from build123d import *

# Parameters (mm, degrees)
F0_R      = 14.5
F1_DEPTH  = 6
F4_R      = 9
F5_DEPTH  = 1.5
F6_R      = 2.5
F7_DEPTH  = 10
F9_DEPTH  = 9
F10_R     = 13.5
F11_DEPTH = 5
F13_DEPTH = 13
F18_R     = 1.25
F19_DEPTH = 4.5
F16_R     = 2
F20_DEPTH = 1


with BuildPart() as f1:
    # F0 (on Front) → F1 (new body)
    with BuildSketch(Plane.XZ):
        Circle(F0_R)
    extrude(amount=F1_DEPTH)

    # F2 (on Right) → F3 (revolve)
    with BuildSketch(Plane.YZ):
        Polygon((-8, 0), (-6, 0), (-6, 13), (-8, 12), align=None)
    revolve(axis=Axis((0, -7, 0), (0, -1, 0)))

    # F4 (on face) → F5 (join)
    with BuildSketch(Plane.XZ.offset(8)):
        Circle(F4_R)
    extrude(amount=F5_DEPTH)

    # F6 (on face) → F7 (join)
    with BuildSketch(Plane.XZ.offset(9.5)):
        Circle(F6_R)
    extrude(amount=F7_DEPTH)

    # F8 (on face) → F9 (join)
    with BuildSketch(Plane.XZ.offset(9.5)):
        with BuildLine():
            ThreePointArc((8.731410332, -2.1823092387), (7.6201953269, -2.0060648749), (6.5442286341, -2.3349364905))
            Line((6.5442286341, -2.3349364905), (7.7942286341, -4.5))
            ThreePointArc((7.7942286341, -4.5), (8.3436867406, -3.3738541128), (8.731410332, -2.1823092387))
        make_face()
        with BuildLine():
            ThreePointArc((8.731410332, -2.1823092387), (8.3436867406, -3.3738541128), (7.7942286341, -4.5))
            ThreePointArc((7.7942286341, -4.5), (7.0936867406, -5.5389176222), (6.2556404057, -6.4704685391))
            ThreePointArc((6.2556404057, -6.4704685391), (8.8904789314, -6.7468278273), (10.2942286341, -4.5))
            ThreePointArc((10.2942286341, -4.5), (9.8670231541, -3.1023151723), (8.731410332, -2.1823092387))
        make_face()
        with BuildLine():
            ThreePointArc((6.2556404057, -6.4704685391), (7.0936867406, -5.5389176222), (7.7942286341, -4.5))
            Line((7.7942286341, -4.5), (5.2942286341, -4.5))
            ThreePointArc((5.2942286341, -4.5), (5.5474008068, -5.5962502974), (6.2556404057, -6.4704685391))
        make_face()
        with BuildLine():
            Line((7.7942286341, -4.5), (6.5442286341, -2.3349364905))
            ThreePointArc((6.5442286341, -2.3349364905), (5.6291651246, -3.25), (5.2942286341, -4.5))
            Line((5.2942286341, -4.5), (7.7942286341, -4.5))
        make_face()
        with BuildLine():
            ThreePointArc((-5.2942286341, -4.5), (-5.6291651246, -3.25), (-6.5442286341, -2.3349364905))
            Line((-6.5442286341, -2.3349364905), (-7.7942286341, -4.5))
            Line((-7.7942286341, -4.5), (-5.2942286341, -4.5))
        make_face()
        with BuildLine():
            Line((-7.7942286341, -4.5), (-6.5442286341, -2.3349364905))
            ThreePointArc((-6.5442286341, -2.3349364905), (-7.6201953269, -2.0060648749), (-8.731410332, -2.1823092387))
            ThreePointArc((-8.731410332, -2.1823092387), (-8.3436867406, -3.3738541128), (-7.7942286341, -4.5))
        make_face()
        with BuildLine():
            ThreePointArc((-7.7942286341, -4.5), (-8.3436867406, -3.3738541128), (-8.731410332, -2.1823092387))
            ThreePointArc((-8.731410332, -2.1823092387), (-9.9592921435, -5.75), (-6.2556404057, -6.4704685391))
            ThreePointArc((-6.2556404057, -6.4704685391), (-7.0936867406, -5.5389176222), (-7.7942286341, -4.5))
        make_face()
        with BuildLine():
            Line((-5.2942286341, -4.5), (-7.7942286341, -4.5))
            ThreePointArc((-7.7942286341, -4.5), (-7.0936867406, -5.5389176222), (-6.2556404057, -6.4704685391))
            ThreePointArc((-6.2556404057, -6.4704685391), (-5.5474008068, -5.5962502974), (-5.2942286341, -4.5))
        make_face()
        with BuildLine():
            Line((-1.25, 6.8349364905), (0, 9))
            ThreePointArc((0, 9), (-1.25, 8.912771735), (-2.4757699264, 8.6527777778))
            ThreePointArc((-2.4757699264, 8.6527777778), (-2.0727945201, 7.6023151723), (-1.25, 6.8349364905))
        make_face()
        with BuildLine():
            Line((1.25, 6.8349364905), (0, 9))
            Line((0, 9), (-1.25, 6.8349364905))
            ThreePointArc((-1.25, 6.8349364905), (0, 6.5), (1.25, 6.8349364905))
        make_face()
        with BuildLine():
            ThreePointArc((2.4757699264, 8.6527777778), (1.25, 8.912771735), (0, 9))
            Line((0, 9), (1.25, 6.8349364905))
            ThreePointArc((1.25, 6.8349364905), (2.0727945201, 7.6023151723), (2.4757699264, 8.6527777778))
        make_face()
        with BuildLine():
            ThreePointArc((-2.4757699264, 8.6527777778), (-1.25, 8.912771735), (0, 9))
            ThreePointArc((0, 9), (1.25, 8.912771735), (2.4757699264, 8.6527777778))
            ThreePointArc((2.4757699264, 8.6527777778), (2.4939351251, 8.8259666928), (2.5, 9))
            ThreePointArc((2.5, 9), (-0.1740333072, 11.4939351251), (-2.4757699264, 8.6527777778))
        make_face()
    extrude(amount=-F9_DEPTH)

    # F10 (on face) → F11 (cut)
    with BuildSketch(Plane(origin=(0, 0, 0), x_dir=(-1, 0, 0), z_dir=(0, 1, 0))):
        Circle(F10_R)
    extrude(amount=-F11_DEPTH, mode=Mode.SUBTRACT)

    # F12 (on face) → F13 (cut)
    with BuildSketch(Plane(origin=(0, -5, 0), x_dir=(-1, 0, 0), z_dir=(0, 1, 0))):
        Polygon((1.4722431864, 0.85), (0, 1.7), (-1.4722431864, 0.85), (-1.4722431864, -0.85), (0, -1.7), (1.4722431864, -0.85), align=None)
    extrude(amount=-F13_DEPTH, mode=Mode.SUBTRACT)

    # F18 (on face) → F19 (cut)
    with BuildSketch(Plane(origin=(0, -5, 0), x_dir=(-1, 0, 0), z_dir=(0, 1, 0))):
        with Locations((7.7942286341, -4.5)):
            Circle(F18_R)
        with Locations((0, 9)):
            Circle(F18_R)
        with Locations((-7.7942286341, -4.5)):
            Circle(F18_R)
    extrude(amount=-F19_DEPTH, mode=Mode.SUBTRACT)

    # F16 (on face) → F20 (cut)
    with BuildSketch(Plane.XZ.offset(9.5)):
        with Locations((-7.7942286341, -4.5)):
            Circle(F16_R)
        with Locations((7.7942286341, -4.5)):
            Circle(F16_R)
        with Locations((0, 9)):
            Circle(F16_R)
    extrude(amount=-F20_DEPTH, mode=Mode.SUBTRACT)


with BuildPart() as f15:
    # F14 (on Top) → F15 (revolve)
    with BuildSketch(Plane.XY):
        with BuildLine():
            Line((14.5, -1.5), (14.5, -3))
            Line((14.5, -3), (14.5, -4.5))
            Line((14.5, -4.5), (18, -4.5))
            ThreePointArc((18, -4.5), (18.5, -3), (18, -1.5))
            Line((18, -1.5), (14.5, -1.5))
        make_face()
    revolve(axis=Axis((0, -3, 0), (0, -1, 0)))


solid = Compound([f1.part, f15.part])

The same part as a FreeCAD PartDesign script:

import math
import FreeCAD as App
import Part
import Sketcher

V = App.Vector
Q = App.Units.Quantity


def add_polygon(sketch, points):
    """Adds a closed chain of lines whose ends are joined by coincident constraints."""
    first, n = sketch.GeometryCount, len(points)
    for a, b in zip(points, points[1:] + points[:1]):
        sketch.addGeometry(Part.LineSegment(App.Vector(*a, 0), App.Vector(*b, 0)), False)
    for i in range(n):
        sketch.addConstraint(Sketcher.Constraint("Coincident", first + i, 2, first + (i + 1) % n, 1))

doc = App.newDocument("Part")
body = doc.addObject("PartDesign::Body", "Body")

sketch1 = body.newObject("Sketcher::SketchObject", "Sketch")
sketch1.AttachmentSupport = (doc.getObject("XZ_Plane"), [""])
sketch1.MapMode = "FlatFace"
sketch1.addGeometry(Part.Circle(V(0, 0, 0), V(0, 0, 1), 14), False)
sketch1.addConstraint([
    Sketcher.Constraint("Coincident", 0, 3, -1, 1),
    Sketcher.Constraint("Diameter", 0, Q("29 mm")),
])
pad1 = body.newObject("PartDesign::Pad", "Pad")
pad1.Profile = sketch1
pad1.Length = 6

sketch2 = body.newObject("Sketcher::SketchObject", "Sketch001")
sketch2.AttachmentSupport = (doc.getObject("YZ_Plane"), [""])
sketch2.MapMode = "FlatFace"
add_polygon(sketch2, [(-8, 0), (-6, 0), (-6, 13), (-8, 12)])
sketch2.addConstraint([
    Sketcher.Constraint("Horizontal", 0),
    Sketcher.Constraint("Vertical", 1),
    Sketcher.Constraint("Vertical", 3),
    Sketcher.Constraint("PointOnObject", 0, 2, -1),
    Sketcher.Constraint("DistanceX", 0, 1, 0, 2, Q("2 mm")),
    Sketcher.Constraint("DistanceY", 1, 1, 1, 2, Q("13 mm")),
    Sketcher.Constraint("DistanceY", 3, 2, 3, 1, Q("12 mm")),
    Sketcher.Constraint("DistanceX", 0, 2, -1, 1, Q("6 mm")),
])
revolution = body.newObject("PartDesign::Revolution", "Revolution")
revolution.Profile = sketch2
revolution.ReferenceAxis = (sketch2, ["H_Axis"])
revolution.Angle = 360

sketch3 = body.newObject("Sketcher::SketchObject", "Sketch002")
sketch3.AttachmentSupport = (doc.getObject("XZ_Plane"), [""])
sketch3.MapMode = "FlatFace"
sketch3.AttachmentOffset = App.Placement(V(0, 0, 8), App.Rotation())
sketch3.addGeometry(Part.Circle(V(0, 0, 0), V(0, 0, 1), 9), False)
sketch3.addConstraint([
    Sketcher.Constraint("Coincident", 0, 3, -1, 1),
    Sketcher.Constraint("Diameter", 0, Q("18 mm")),
])
pad2 = body.newObject("PartDesign::Pad", "Pad001")
pad2.Profile = sketch3
pad2.Length = 1.5

sketch4 = body.newObject("Sketcher::SketchObject", "Sketch003")
sketch4.AttachmentSupport = (doc.getObject("XZ_Plane"), [""])
sketch4.MapMode = "FlatFace"
sketch4.AttachmentOffset = App.Placement(V(0, 0, 9.5), App.Rotation())
sketch4.addGeometry(Part.Circle(V(0, 0, 0), V(0, 0, 1), 2.5), False)
sketch4.addConstraint([
    Sketcher.Constraint("Coincident", 0, 3, -1, 1),
    Sketcher.Constraint("Diameter", 0, Q("5 mm")),
])
pad3 = body.newObject("PartDesign::Pad", "Pad002")
pad3.Profile = sketch4
pad3.Length = 10

sketch5 = body.newObject("Sketcher::SketchObject", "Sketch004")
sketch5.AttachmentSupport = (doc.getObject("XZ_Plane"), [""])
sketch5.MapMode = "FlatFace"
sketch5.AttachmentOffset = App.Placement(V(0, 0, 9.5), App.Rotation())
sketch5.addGeometry([
    Part.ArcOfCircle(Part.Circle(V(7.79, -4.5, 0), V(0, 0, 1), 2.5), math.radians(68), math.radians(120)),
    Part.ArcOfCircle(Part.Circle(V(7.79, -4.5, 0), V(0, 0, 1), 2.5), math.radians(120), math.radians(180)),
    Part.ArcOfCircle(Part.Circle(V(7.79, -4.5, 0), V(0, 0, 1), 2.5), math.radians(180), math.radians(232)),
    Part.ArcOfCircle(Part.Circle(V(7.79, -4.5, 0), V(0, 0, 1), 2.5), math.radians(-128), math.radians(0)),
    Part.ArcOfCircle(Part.Circle(V(7.79, -4.5, 0), V(0, 0, 1), 2.5), math.radians(0), math.radians(68)),
    Part.ArcOfCircle(Part.Circle(V(-7.79, -4.5, 0), V(0, 0, 1), 2.5), math.radians(0), math.radians(60)),
    Part.ArcOfCircle(Part.Circle(V(-7.79, -4.5, 0), V(0, 0, 1), 2.5), math.radians(60), math.radians(112)),
    Part.ArcOfCircle(Part.Circle(V(-7.79, -4.5, 0), V(0, 0, 1), 2.5), math.radians(112), math.radians(308)),
    Part.ArcOfCircle(Part.Circle(V(-7.79, -4.5, 0), V(0, 0, 1), 2.5), math.radians(-52), math.radians(0)),
    Part.ArcOfCircle(Part.Circle(V(0, 9, 0), V(0, 0, 1), 2.5), math.radians(-172), math.radians(-120)),
    Part.ArcOfCircle(Part.Circle(V(0, 9, 0), V(0, 0, 1), 2.5), math.radians(-120), math.radians(-60)),
    Part.ArcOfCircle(Part.Circle(V(0, 9, 0), V(0, 0, 1), 2.5), math.radians(-60), math.radians(-8)),
    Part.ArcOfCircle(Part.Circle(V(0, 9, 0), V(0, 0, 1), 2.5), math.radians(-7.98), math.radians(0)),
    Part.ArcOfCircle(Part.Circle(V(0, 9, 0), V(0, 0, 1), 2.5), math.radians(0), math.radians(188)),
], False)
sketch5.addConstraint([
    Sketcher.Constraint("Tangent", 0, 2, 1, 1),
    Sketcher.Constraint("Tangent", 1, 2, 2, 1),
    Sketcher.Constraint("Tangent", 2, 2, 3, 1),
    Sketcher.Constraint("Tangent", 3, 2, 4, 1),
    Sketcher.Constraint("Tangent", 4, 2, 0, 1),
    Sketcher.Constraint("Tangent", 5, 2, 6, 1),
    Sketcher.Constraint("Tangent", 6, 2, 7, 1),
    Sketcher.Constraint("Tangent", 7, 2, 8, 1),
    Sketcher.Constraint("Tangent", 8, 2, 5, 1),
    Sketcher.Constraint("Tangent", 9, 2, 10, 1),
    Sketcher.Constraint("Tangent", 10, 2, 11, 1),
    Sketcher.Constraint("Tangent", 11, 2, 12, 1),
    Sketcher.Constraint("Tangent", 12, 2, 13, 1),
    Sketcher.Constraint("Tangent", 13, 2, 9, 1),
    Sketcher.Constraint("Coincident", 2, 3, 0, 3),
    Sketcher.Constraint("Coincident", 11, 3, 9, 3),
    Sketcher.Constraint("Equal", 4, 5),
    Sketcher.Constraint("Equal", 5, 6),
    Sketcher.Constraint("Equal", 8, 9),
    Sketcher.Constraint("Symmetric", 0, 3, 5, 3, -2),
    Sketcher.Constraint("Symmetric", 9, 2, 10, 2, -2),
    Sketcher.Constraint("Horizontal", 8, 3, 1, 2),
    Sketcher.Constraint("Horizontal", 1, 2, 3, 2),
    Sketcher.Constraint("Horizontal", 0, 2, 5, 2),
    Sketcher.Constraint("Horizontal", 4, 2, 6, 2),
    Sketcher.Constraint("Horizontal", 2, 2, 7, 2),
    Sketcher.Constraint("Horizontal", 3, 2, 8, 2),
    Sketcher.Constraint("Horizontal", 13, 3, 12, 2),
    Sketcher.Constraint("Horizontal", 11, 2, 13, 2),
    Sketcher.Constraint("Radius", 0, Q("2.5 mm")),
    Sketcher.Constraint("DistanceY", -1, 1, 9, 3, Q("9 mm")),
    Sketcher.Constraint("DistanceY", 0, 3, -1, 1, Q("4.5 mm")),
    Sketcher.Constraint("DistanceX", 9, 2, 10, 2, Q("2.5 mm")),
    Sketcher.Constraint("DistanceX", 0, 2, 0, 3, Q("1.25 mm")),
    Sketcher.Constraint("DistanceX", -1, 1, 0, 3, Q("7.794229 mm")),
    Sketcher.Constraint("DistanceX", -1, 1, 2, 2, Q("6.25564 mm")),
    Sketcher.Constraint("DistanceX", -1, 1, 4, 2, Q("8.73141 mm")),
    Sketcher.Constraint("DistanceX", -1, 1, 11, 2, Q("2.47577 mm")),
])
pad4 = body.newObject("PartDesign::Pad", "Pad003")
pad4.Profile = sketch5
pad4.Length = 9
pad4.Reversed = True

sketch6 = body.newObject("Sketcher::SketchObject", "Sketch005")
sketch6.AttachmentSupport = (doc.getObject("XZ_Plane"), [""])
sketch6.MapMode = "FlatFace"
sketch6.addGeometry(Part.Circle(V(0, 0, 0), V(0, 0, 1), 14), False)
sketch6.addConstraint([
    Sketcher.Constraint("Coincident", 0, 3, -1, 1),
    Sketcher.Constraint("Diameter", 0, Q("27 mm")),
])
pocket1 = body.newObject("PartDesign::Pocket", "Pocket")
pocket1.Profile = sketch6
pocket1.Length = 5
pocket1.Reversed = True

sketch7 = body.newObject("Sketcher::SketchObject", "Sketch006")
sketch7.AttachmentSupport = (doc.getObject("XZ_Plane"), [""])
sketch7.MapMode = "FlatFace"
sketch7.AttachmentOffset = App.Placement(V(0, 0, 5), App.Rotation())
add_polygon(sketch7, [(-1.5, 0.8), (0, 1.7), (1.5, 0.8), (1.5, -0.8), (0, -1.7), (-1.5, -0.8)])
sketch7.addConstraint([
    Sketcher.Constraint("Vertical", 2),
    Sketcher.Constraint("Vertical", 5),
    Sketcher.Constraint("Symmetric", 0, 2, 3, 2, -1, 1),
    Sketcher.Constraint("Symmetric", 1, 2, 4, 2, -1, 1),
    Sketcher.Constraint("PointOnObject", 0, 2, -2),
    Sketcher.Constraint("Parallel", 0, 3),
    Sketcher.Constraint("Horizontal", 2, 2, 4, 2),
    Sketcher.Constraint("Angle", 0, Q("30 deg")),
    Sketcher.Constraint("DistanceY", 2, 2, 2, 1, Q("1.7 mm")),
    Sketcher.Constraint("Distance", 0, Q("1.7 mm")),
])
pocket2 = body.newObject("PartDesign::Pocket", "Pocket001")
pocket2.Profile = sketch7
pocket2.Length = 13
pocket2.Reversed = True

sketch8 = body.newObject("Sketcher::SketchObject", "Sketch007")
sketch8.AttachmentSupport = (doc.getObject("XZ_Plane"), [""])
sketch8.MapMode = "FlatFace"
sketch8.AttachmentOffset = App.Placement(V(0, 0, 5), App.Rotation())
sketch8.addGeometry([
    Part.Circle(V(-7.8, -4.5, 0), V(0, 0, 1), 1.2),
    Part.Circle(V(0, 9, 0), V(0, 0, 1), 1.2),
    Part.Circle(V(7.8, -4.5, 0), V(0, 0, 1), 1.2),
], False)
sketch8.addConstraint([
    Sketcher.Constraint("Equal", 0, 1),
    Sketcher.Constraint("Equal", 1, 2),
    Sketcher.Constraint("Symmetric", 0, 3, 2, 3, -2),
    Sketcher.Constraint("PointOnObject", 1, 3, -2),
    Sketcher.Constraint("Diameter", 0, Q("2.5 mm")),
    Sketcher.Constraint("DistanceY", -1, 1, 1, 3, Q("9 mm")),
    Sketcher.Constraint("DistanceY", 0, 3, -1, 1, Q("4.5 mm")),
    Sketcher.Constraint("DistanceX", 0, 3, -1, 1, Q("7.794229 mm")),
])
pocket3 = body.newObject("PartDesign::Pocket", "Pocket002")
pocket3.Profile = sketch8
pocket3.Length = 4.5
pocket3.Reversed = True

sketch9 = body.newObject("Sketcher::SketchObject", "Sketch008")
sketch9.AttachmentSupport = (doc.getObject("XZ_Plane"), [""])
sketch9.MapMode = "FlatFace"
sketch9.AttachmentOffset = App.Placement(V(0, 0, 9.5), App.Rotation())
sketch9.addGeometry([
    Part.Circle(V(-7.8, -4.5, 0), V(0, 0, 1), 2),
    Part.Circle(V(7.8, -4.5, 0), V(0, 0, 1), 2),
    Part.Circle(V(0, 9, 0), V(0, 0, 1), 2),
], False)
sketch9.addConstraint([
    Sketcher.Constraint("Equal", 0, 1),
    Sketcher.Constraint("Equal", 1, 2),
    Sketcher.Constraint("Symmetric", 0, 3, 1, 3, -2),
    Sketcher.Constraint("PointOnObject", 2, 3, -2),
    Sketcher.Constraint("Diameter", 0, Q("4 mm")),
    Sketcher.Constraint("DistanceY", -1, 1, 2, 3, Q("9 mm")),
    Sketcher.Constraint("DistanceY", 0, 3, -1, 1, Q("4.5 mm")),
    Sketcher.Constraint("DistanceX", 0, 3, -1, 1, Q("7.794229 mm")),
])
pocket4 = body.newObject("PartDesign::Pocket", "Pocket003")
pocket4.Profile = sketch9
pocket4.Length = 1
body2 = doc.addObject("PartDesign::Body", "Body001")

sketch10 = body2.newObject("Sketcher::SketchObject", "Sketch009")
sketch10.AttachmentSupport = (doc.getObject("XY_Plane001"), [""])
sketch10.MapMode = "FlatFace"
sketch10.addGeometry([
    Part.LineSegment(V(14.5, -1.5, 0), V(14.5, -4.5, 0)),
    Part.LineSegment(V(14.5, -4.5, 0), V(18, -4.5, 0)),
    Part.ArcOfCircle(Part.Circle(V(16, -3, 0), V(0, 0, 1), 2.5), math.radians(-37), math.radians(37)),
    Part.LineSegment(V(18, -1.5, 0), V(14.5, -1.5, 0)),
], False)
sketch10.addConstraint([
    Sketcher.Constraint("Coincident", 0, 2, 1, 1),
    Sketcher.Constraint("Coincident", 1, 2, 2, 1),
    Sketcher.Constraint("Coincident", 2, 2, 3, 1),
    Sketcher.Constraint("Coincident", 3, 2, 0, 1),
    Sketcher.Constraint("Vertical", 0),
    Sketcher.Constraint("Horizontal", 1),
    Sketcher.Constraint("Horizontal", 3),
    Sketcher.Constraint("Vertical", 1, 2, 2, 2),
    Sketcher.Constraint("Radius", 2, Q("2.5 mm")),
    Sketcher.Constraint("DistanceY", 0, 2, 0, 1, Q("3 mm")),
    Sketcher.Constraint("DistanceX", 1, 1, 1, 2, Q("3.5 mm")),
    Sketcher.Constraint("DistanceX", -1, 1, 2, 3, Q("16 mm")),
    Sketcher.Constraint("DistanceY", 2, 3, -1, 1, Q("3 mm")),
])
revolution2 = body2.newObject("PartDesign::Revolution", "Revolution001")
revolution2.Profile = sketch10
revolution2.ReferenceAxis = (sketch10, ["V_Axis"])
revolution2.Angle = 360

doc.recompute()
